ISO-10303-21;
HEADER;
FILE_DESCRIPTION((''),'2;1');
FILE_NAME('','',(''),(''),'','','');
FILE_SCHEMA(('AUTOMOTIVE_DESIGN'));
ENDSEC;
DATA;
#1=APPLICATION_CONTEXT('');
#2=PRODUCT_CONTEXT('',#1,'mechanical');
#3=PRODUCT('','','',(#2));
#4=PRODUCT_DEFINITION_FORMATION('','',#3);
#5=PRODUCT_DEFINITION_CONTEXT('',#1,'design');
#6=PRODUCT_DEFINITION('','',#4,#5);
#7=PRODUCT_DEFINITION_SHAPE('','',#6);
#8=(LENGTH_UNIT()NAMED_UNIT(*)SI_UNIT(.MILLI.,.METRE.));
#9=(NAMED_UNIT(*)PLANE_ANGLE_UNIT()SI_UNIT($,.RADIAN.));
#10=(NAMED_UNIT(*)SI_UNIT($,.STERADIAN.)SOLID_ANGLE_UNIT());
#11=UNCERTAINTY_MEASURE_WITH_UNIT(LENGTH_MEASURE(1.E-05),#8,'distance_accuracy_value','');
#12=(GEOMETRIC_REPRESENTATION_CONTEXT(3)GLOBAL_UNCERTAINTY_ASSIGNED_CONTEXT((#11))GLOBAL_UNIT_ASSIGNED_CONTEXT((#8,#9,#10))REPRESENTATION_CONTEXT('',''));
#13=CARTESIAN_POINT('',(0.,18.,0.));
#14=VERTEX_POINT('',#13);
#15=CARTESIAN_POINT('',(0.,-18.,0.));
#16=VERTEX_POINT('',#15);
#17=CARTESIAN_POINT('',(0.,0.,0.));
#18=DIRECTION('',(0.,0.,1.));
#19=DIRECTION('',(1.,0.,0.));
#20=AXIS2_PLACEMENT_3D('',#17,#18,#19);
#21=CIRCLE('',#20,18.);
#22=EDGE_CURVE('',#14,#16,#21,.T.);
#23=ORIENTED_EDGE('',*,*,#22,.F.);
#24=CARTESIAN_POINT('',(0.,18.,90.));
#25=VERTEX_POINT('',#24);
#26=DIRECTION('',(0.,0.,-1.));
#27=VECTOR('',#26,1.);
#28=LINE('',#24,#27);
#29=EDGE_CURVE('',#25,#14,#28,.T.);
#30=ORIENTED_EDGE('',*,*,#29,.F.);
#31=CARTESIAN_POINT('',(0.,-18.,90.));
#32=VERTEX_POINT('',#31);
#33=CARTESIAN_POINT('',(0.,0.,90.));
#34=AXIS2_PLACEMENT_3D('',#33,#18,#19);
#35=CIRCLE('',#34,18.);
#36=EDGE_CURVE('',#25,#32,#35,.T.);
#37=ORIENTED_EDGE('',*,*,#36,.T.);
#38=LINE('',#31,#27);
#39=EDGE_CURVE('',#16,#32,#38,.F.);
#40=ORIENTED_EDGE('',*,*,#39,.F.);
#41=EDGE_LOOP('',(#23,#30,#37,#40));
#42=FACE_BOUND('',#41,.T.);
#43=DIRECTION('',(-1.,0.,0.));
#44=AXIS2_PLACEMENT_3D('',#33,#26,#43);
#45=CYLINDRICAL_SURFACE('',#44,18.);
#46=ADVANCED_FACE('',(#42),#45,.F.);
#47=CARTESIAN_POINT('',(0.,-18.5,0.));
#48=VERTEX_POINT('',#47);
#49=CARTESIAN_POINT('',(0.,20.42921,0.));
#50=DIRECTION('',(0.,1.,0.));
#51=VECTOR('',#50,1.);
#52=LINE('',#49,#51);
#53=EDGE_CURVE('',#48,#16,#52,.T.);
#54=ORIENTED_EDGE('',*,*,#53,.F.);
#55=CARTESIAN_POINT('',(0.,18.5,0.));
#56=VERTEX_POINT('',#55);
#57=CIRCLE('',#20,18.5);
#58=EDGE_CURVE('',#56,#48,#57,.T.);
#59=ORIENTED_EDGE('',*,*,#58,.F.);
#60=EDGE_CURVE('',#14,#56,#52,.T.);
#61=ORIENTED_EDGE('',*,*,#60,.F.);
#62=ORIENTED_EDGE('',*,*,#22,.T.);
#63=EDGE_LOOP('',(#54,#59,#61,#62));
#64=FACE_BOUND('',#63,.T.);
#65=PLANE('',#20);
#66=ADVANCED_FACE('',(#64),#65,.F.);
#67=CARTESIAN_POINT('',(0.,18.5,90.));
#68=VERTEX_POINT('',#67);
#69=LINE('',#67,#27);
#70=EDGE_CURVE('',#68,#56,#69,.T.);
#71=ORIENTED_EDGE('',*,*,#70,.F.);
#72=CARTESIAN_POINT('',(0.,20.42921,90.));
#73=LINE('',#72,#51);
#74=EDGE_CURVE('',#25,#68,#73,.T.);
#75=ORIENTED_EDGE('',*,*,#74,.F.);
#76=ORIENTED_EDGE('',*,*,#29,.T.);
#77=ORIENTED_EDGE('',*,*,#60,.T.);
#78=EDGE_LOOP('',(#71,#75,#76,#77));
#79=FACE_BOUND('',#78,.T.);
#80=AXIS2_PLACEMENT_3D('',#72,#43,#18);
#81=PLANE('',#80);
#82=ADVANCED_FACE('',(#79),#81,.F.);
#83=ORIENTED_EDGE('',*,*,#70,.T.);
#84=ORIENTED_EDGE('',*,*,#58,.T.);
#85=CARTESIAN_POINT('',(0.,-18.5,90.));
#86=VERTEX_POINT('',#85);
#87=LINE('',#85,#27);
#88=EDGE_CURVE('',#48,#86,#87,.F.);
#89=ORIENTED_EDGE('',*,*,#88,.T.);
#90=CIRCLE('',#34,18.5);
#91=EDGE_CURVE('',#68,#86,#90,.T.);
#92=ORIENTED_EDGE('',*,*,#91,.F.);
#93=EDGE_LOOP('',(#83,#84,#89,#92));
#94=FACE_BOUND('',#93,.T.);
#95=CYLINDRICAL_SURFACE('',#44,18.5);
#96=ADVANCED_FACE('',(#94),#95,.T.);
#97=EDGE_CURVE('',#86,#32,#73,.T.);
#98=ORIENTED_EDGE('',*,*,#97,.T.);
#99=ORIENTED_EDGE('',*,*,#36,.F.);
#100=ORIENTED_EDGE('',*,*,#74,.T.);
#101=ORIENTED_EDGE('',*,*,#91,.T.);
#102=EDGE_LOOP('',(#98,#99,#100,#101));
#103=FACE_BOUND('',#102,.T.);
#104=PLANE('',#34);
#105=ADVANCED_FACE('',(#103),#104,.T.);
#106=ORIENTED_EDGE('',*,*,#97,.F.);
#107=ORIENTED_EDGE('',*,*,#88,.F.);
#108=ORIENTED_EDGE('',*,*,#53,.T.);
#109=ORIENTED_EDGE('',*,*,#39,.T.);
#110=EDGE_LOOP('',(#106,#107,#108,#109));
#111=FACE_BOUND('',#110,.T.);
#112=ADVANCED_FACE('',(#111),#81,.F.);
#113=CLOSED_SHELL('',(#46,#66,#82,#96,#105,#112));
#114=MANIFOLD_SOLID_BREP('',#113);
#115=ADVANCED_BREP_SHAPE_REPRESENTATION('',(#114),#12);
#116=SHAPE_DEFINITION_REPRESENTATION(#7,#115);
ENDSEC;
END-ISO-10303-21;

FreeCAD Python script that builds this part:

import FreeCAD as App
import Part
import Sketcher
from FreeCAD import Vector
Q = App.Units.Quantity


def add_polygon(sketch, points):
    """Adds a closed chain of lines whose ends are joined by coincident constraints."""
    first, n = sketch.GeometryCount, len(points)
    for a, b in zip(points, points[1:] + points[:1]):
        sketch.addGeometry(Part.LineSegment(App.Vector(*a, 0), App.Vector(*b, 0)), False)
    for i in range(n):
        sketch.addConstraint(Sketcher.Constraint("Coincident", first + i, 2, first + (i + 1) % n, 1))

doc = App.newDocument("Part")
body = doc.addObject("PartDesign::Body", "Body")

sketch1 = body.newObject("Sketcher::SketchObject", "Sketch")
sketch1.AttachmentSupport = (doc.getObject("XY_Plane"), [""])
sketch1.MapMode = "FlatFace"
sketch1.addGeometry([
    Part.Circle(Vector(0, 0, 0), Vector(0, 0, 1), 18),
    Part.Circle(Vector(0, 0, 0), Vector(0, 0, 1), 18),
], False)
sketch1.addConstraint([
    Sketcher.Constraint("Coincident", 0, 3, -1, 1),
    Sketcher.Constraint("Coincident", 1, 3, -1, 1),
    Sketcher.Constraint("Diameter", 0, Q("37 mm")),
    Sketcher.Constraint("Diameter", 1, Q("36 mm")),
])
pad1 = body.newObject("PartDesign::Pad", "Pad")
pad1.Profile = sketch1
pad1.Length = 90

sketch2 = body.newObject("Sketcher::SketchObject", "Sketch001")
sketch2.AttachmentSupport = (doc.getObject("XY_Plane"), [""])
sketch2.MapMode = "FlatFace"
add_polygon(sketch2, [(21, 20), (21, -21), (0, -21), (0, 20)])
sketch2.addConstraint([
    Sketcher.Constraint("Vertical", 0),
    Sketcher.Constraint("Horizontal", 1),
    Sketcher.Constraint("Vertical", 2),
    Sketcher.Constraint("Horizontal", 3),
    Sketcher.Constraint("PointOnObject", 1, 2, -2),
    Sketcher.Constraint("DistanceY", 0, 2, 0, 1, Q("41.870479 mm")),
    Sketcher.Constraint("DistanceX", 1, 2, 1, 1, Q("20.552278 mm")),
    Sketcher.Constraint("DistanceY", 0, 2, -1, 1, Q("21.441268 mm")),
])
pocket1 = body.newObject("PartDesign::Pocket", "Pocket")
pocket1.Profile = sketch2
pocket1.Length = 90
pocket1.Reversed = True

doc.recompute()
